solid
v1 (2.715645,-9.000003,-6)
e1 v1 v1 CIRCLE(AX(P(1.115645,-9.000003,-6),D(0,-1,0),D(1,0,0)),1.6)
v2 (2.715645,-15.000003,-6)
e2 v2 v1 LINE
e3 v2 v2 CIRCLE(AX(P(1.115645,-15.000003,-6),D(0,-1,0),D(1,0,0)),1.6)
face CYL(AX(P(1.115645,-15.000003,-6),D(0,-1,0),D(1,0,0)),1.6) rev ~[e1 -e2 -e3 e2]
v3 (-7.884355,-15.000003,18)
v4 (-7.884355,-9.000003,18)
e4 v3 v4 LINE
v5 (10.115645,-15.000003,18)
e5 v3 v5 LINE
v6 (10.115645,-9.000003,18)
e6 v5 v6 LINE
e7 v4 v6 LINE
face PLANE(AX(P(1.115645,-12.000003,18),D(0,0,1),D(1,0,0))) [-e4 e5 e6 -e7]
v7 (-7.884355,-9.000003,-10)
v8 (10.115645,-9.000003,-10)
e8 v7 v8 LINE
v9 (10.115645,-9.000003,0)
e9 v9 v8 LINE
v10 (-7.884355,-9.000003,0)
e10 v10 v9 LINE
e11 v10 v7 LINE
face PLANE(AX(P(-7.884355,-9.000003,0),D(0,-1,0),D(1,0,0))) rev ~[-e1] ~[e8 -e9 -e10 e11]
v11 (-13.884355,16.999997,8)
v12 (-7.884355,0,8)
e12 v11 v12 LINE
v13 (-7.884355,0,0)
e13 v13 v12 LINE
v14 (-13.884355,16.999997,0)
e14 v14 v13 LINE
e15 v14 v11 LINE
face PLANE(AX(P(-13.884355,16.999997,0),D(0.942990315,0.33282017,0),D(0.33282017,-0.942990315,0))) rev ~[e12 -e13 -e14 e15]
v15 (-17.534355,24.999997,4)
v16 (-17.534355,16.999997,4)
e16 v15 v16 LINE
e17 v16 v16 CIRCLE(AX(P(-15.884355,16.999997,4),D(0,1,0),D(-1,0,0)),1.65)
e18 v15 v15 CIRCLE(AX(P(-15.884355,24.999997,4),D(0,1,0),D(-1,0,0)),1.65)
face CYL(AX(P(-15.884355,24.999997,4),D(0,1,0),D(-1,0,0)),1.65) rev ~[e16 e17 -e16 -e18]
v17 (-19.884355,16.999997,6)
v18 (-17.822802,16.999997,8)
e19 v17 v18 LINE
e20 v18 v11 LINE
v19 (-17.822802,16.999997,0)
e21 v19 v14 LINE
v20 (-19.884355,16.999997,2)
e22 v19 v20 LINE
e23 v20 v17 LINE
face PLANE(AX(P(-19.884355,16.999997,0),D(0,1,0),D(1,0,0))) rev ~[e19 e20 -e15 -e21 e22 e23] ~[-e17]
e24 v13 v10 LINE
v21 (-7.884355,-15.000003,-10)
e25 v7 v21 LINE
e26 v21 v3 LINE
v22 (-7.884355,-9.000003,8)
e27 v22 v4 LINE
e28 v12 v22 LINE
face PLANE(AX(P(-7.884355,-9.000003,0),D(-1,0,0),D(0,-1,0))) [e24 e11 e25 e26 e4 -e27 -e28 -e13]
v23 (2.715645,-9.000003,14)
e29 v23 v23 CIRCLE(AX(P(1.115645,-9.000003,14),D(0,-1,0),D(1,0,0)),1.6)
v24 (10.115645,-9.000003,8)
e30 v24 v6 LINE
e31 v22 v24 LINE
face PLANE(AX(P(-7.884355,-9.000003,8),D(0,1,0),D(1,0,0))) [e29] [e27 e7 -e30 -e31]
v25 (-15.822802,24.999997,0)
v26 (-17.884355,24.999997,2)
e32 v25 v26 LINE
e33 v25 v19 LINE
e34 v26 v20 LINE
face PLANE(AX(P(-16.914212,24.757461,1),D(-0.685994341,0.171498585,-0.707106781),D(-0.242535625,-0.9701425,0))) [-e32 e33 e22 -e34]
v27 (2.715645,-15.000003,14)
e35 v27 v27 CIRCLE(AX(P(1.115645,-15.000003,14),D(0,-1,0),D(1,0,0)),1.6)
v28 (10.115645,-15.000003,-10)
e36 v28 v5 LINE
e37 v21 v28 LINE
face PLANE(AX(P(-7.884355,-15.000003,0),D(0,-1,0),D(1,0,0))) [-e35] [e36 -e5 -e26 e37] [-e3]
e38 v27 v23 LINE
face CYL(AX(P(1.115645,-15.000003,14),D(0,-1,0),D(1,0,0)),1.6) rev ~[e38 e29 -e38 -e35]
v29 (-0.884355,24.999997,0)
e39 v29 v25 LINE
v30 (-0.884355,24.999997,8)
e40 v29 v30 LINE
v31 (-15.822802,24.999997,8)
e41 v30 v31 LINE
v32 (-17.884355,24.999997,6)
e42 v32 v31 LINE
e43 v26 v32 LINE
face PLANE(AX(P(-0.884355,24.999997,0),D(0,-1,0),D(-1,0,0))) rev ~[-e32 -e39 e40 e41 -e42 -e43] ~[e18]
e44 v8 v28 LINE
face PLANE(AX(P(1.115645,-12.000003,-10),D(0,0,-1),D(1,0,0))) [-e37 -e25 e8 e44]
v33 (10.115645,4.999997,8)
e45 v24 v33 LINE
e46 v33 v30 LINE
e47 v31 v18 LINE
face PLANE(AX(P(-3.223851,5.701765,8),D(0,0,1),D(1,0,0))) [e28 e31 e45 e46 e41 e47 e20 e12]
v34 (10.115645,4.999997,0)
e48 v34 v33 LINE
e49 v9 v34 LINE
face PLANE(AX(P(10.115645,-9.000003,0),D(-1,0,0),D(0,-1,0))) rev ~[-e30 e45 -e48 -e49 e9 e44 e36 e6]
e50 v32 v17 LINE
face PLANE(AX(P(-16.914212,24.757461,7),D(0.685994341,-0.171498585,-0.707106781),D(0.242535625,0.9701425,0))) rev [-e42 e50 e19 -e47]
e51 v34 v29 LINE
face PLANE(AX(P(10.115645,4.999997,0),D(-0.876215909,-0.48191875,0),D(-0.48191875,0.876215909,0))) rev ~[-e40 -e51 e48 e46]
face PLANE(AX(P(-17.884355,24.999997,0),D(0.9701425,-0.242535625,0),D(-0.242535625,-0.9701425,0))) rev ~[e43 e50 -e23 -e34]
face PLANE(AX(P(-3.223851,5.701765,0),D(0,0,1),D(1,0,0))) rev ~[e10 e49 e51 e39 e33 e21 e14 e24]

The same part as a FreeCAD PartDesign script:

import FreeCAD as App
import Part
import Sketcher
Q = App.Units.Quantity


def edges_at(feature, points):
    """Names of the edges that pass closest to the given points."""
    edges = feature.Shape.Edges
    near = lambda p: min(range(len(edges)), key=lambda i: edges[i].distToShape(Part.Vertex(*p))[0])
    return sorted({f"Edge{near(p) + 1}" for p in points})

doc = App.newDocument("Part")
params = doc.addObject("Spreadsheet::Sheet", "Params")
for row, (alias, value) in enumerate([
    ("sketch1_width", "6 mm"),
    ("sketch1_width2", "18 mm"),
    ("sketch1_width3", "17 mm"),
    ("sketch1_height", "20 mm"),
    ("pad1_length", "8 mm"),
    ("sketch2_width", "18 mm"),
    ("sketch2_height", "6 mm"),
    ("pad2_length", "10 mm"),
    ("sketch3_width", "18 mm"),
    ("sketch3_height", "6 mm"),
    ("pad3_length", "10 mm"),
    ("chamfer_size", "2 mm"),
    ("chamfer2_size", "2 mm"),
    ("sketch4_diameter", "3.3 mm"),
    ("pocket1_length", "25 mm"),
    ("sketch5_diameter", "3.2 mm"),
    ("pocket2_length", "25 mm"),
], start=1):
    params.set(f"A{row}", alias)
    params.set(f"B{row}", "=" + value)
    params.setAlias(f"B{row}", alias)

body = doc.addObject("PartDesign::Body", "Body")

sketch1 = body.newObject("Sketcher::SketchObject", "Sketch")
sketch1.AttachmentSupport = (doc.getObject("XY_Plane"), [""])
sketch1.MapMode = "FlatFace"
sketch1.addGeometry([
    Part.LineSegment(App.Vector(-18, 25, 0), App.Vector(-20, 17, 0)),
    Part.LineSegment(App.Vector(-20, 17, 0), App.Vector(-14, 17, 0)),
    Part.LineSegment(App.Vector(-14, 17, 0), App.Vector(-8, 0, 0)),
    Part.LineSegment(App.Vector(-8, 0, 0), App.Vector(-8, -15, 0)),
    Part.LineSegment(App.Vector(-8, -15, 0), App.Vector(10, -15, 0)),
    Part.LineSegment(App.Vector(10, -15, 0), App.Vector(10, 5, 0)),
    Part.LineSegment(App.Vector(10, 5, 0), App.Vector(-1, 25, 0)),
    Part.LineSegment(App.Vector(-1, 25, 0), App.Vector(-18, 25, 0)),
], False)
sketch1.addConstraint([
    Sketcher.Constraint("Coincident", 0, 2, 1, 1),
    Sketcher.Constraint("Coincident", 1, 2, 2, 1),
    Sketcher.Constraint("Coincident", 2, 2, 3, 1),
    Sketcher.Constraint("Coincident", 3, 2, 4, 1),
    Sketcher.Constraint("Coincident", 4, 2, 5, 1),
    Sketcher.Constraint("Coincident", 5, 2, 6, 1),
    Sketcher.Constraint("Coincident", 6, 2, 7, 1),
    Sketcher.Constraint("Coincident", 7, 2, 0, 1),
    Sketcher.Constraint("Horizontal", 1),
    Sketcher.Constraint("Vertical", 3),
    Sketcher.Constraint("Horizontal", 4),
    Sketcher.Constraint("Vertical", 5),
    Sketcher.Constraint("Horizontal", 7),
    Sketcher.Constraint("PointOnObject", 2, 2, -1),
    Sketcher.Constraint("DistanceX", 1, 1, 1, 2, Q("6 mm")),
    Sketcher.Constraint("DistanceX", 4, 1, 4, 2, Q("18 mm")),
    Sketcher.Constraint("DistanceX", 7, 2, 7, 1, Q("17 mm")),
    Sketcher.Constraint("DistanceY", 5, 1, 5, 2, Q("20 mm")),
    Sketcher.Constraint("DistanceX", 1, 2, 2, 2, Q("6 mm")),
    Sketcher.Constraint("DistanceY", 3, 2, 1, 2, Q("32 mm")),
    Sketcher.Constraint("DistanceX", 1, 2, 6, 2, Q("13 mm")),
    Sketcher.Constraint("DistanceY", 1, 2, 6, 2, Q("8 mm")),
    Sketcher.Constraint("DistanceY", 3, 2, 3, 1, Q("15.000003 mm")),
    Sketcher.Constraint("DistanceX", 0, 2, -1, 1, Q("19.884355 mm")),
])
sketch1.setExpression("Constraints[14]", "Params.sketch1_width")
sketch1.setExpression("Constraints[15]", "Params.sketch1_width2")
sketch1.setExpression("Constraints[16]", "Params.sketch1_width3")
sketch1.setExpression("Constraints[17]", "Params.sketch1_height")
pad1 = body.newObject("PartDesign::Pad", "Pad")
pad1.Profile = sketch1
pad1.setExpression("Length", "Params.pad1_length")

sketch2 = body.newObject("Sketcher::SketchObject", "Sketch001")
sketch2.AttachmentSupport = (doc.getObject("XY_Plane"), [""])
sketch2.MapMode = "FlatFace"
sketch2.AttachmentOffset = App.Placement(App.Vector(0, 0, 8), App.Rotation())
sketch2.addGeometry([
    Part.LineSegment(App.Vector(-8, -9, 0), App.Vector(-8, -15, 0)),
    Part.LineSegment(App.Vector(-8, -15, 0), App.Vector(10, -15, 0)),
    Part.LineSegment(App.Vector(10, -15, 0), App.Vector(10, -9, 0)),
    Part.LineSegment(App.Vector(10, -9, 0), App.Vector(-8, -9, 0)),
], False)
sketch2.addConstraint([
    Sketcher.Constraint("Coincident", 0, 2, 1, 1),
    Sketcher.Constraint("Coincident", 1, 2, 2, 1),
    Sketcher.Constraint("Coincident", 2, 2, 3, 1),
    Sketcher.Constraint("Coincident", 3, 2, 0, 1),
    Sketcher.Constraint("Vertical", 0),
    Sketcher.Constraint("Horizontal", 1),
    Sketcher.Constraint("Vertical", 2),
    Sketcher.Constraint("Horizontal", 3),
    Sketcher.Constraint("DistanceX", 1, 1, 1, 2, Q("18 mm")),
    Sketcher.Constraint("DistanceY", 0, 2, 0, 1, Q("6 mm")),
    Sketcher.Constraint("DistanceX", 0, 2, -1, 1, Q("7.884355 mm")),
    Sketcher.Constraint("DistanceY", 0, 2, -1, 1, Q("15.000003 mm")),
])
sketch2.setExpression("Constraints[8]", "Params.sketch2_width")
sketch2.setExpression("Constraints[9]", "Params.sketch2_height")
pad2 = body.newObject("PartDesign::Pad", "Pad001")
pad2.Profile = sketch2
pad2.setExpression("Length", "Params.pad2_length")

sketch3 = body.newObject("Sketcher::SketchObject", "Sketch002")
sketch3.AttachmentSupport = (doc.getObject("XY_Plane"), [""])
sketch3.MapMode = "FlatFace"
sketch3.addGeometry([
    Part.LineSegment(App.Vector(-8, -15, 0), App.Vector(-8, -9, 0)),
    Part.LineSegment(App.Vector(-8, -9, 0), App.Vector(10, -9, 0)),
    Part.LineSegment(App.Vector(10, -9, 0), App.Vector(10, -15, 0)),
    Part.LineSegment(App.Vector(10, -15, 0), App.Vector(-8, -15, 0)),
], False)
sketch3.addConstraint([
    Sketcher.Constraint("Coincident", 0, 2, 1, 1),
    Sketcher.Constraint("Coincident", 1, 2, 2, 1),
    Sketcher.Constraint("Coincident", 2, 2, 3, 1),
    Sketcher.Constraint("Coincident", 3, 2, 0, 1),
    Sketcher.Constraint("Vertical", 0),
    Sketcher.Constraint("Horizontal", 1),
    Sketcher.Constraint("Vertical", 2),
    Sketcher.Constraint("Horizontal", 3),
    Sketcher.Constraint("DistanceX", 1, 1, 1, 2, Q("18 mm")),
    Sketcher.Constraint("DistanceY", 0, 1, 0, 2, Q("6 mm")),
    Sketcher.Constraint("DistanceX", 0, 2, -1, 1, Q("7.884355 mm")),
    Sketcher.Constraint("DistanceY", 0, 2, -1, 1, Q("9.000003 mm")),
])
sketch3.setExpression("Constraints[8]", "Params.sketch3_width")
sketch3.setExpression("Constraints[9]", "Params.sketch3_height")
pad3 = body.newObject("PartDesign::Pad", "Pad002")
pad3.Profile = sketch3
pad3.setExpression("Length", "Params.pad3_length")
pad3.Reversed = True
doc.recompute()

chamfer = body.newObject("PartDesign::Chamfer", "Chamfer")
chamfer.Base = (pad3, edges_at(pad3, [(-18.884, 21, 0)]))
chamfer.setExpression("Size", "Params.chamfer_size")
doc.recompute()

chamfer2 = body.newObject("PartDesign::Chamfer", "Chamfer001")
chamfer2.Base = (chamfer, edges_at(chamfer, [(-18.884, 21, 8)]))
chamfer2.setExpression("Size", "Params.chamfer2_size")

sketch4 = body.newObject("Sketcher::SketchObject", "Sketch003")
sketch4.AttachmentSupport = (doc.getObject("XZ_Plane"), [""])
sketch4.MapMode = "FlatFace"
sketch4.AttachmentOffset = App.Placement(App.Vector(0, 0, -24.999997), App.Rotation())
sketch4.addGeometry(Part.Circle(App.Vector(-15.9, 4, 0), App.Vector(0, 0, 1), 1.6), False)
sketch4.addConstraint([
    Sketcher.Constraint("Diameter", 0, Q("3.3 mm")),
    Sketcher.Constraint("DistanceY", -1, 1, 0, 3, Q("4 mm")),
    Sketcher.Constraint("DistanceX", 0, 3, -1, 1, Q("15.884355 mm")),
])
sketch4.setExpression("Constraints[0]", "Params.sketch4_diameter")
pocket1 = body.newObject("PartDesign::Pocket", "Pocket")
pocket1.Profile = sketch4
pocket1.setExpression("Length", "Params.pocket1_length")
pocket1.Reversed = True

sketch5 = body.newObject("Sketcher::SketchObject", "Sketch004")
sketch5.AttachmentSupport = (doc.getObject("XZ_Plane"), [""])
sketch5.MapMode = "FlatFace"
sketch5.AttachmentOffset = App.Placement(App.Vector(0, 0, 15.000003), App.Rotation())
sketch5.addGeometry([
    Part.Circle(App.Vector(1.1, 14, 0), App.Vector(0, 0, 1), 1.6),
    Part.Circle(App.Vector(1.1, -6, 0), App.Vector(0, 0, 1), 1.6),
], False)
sketch5.addConstraint([
    Sketcher.Constraint("Equal", 0, 1),
    Sketcher.Constraint("Vertical", 0, 3, 1, 3),
    Sketcher.Constraint("Diameter", 0, Q("3.2 mm")),
    Sketcher.Constraint("DistanceY", -1, 1, 0, 3, Q("14 mm")),
    Sketcher.Constraint("DistanceY", 1, 3, -1, 1, Q("6 mm")),
    Sketcher.Constraint("DistanceX", -1, 1, 0, 3, Q("1.115645 mm")),
])
sketch5.setExpression("Constraints[2]", "Params.sketch5_diameter")
pocket2 = body.newObject("PartDesign::Pocket", "Pocket001")
pocket2.Profile = sketch5
pocket2.setExpression("Length", "Params.pocket2_length")

doc.recompute()
